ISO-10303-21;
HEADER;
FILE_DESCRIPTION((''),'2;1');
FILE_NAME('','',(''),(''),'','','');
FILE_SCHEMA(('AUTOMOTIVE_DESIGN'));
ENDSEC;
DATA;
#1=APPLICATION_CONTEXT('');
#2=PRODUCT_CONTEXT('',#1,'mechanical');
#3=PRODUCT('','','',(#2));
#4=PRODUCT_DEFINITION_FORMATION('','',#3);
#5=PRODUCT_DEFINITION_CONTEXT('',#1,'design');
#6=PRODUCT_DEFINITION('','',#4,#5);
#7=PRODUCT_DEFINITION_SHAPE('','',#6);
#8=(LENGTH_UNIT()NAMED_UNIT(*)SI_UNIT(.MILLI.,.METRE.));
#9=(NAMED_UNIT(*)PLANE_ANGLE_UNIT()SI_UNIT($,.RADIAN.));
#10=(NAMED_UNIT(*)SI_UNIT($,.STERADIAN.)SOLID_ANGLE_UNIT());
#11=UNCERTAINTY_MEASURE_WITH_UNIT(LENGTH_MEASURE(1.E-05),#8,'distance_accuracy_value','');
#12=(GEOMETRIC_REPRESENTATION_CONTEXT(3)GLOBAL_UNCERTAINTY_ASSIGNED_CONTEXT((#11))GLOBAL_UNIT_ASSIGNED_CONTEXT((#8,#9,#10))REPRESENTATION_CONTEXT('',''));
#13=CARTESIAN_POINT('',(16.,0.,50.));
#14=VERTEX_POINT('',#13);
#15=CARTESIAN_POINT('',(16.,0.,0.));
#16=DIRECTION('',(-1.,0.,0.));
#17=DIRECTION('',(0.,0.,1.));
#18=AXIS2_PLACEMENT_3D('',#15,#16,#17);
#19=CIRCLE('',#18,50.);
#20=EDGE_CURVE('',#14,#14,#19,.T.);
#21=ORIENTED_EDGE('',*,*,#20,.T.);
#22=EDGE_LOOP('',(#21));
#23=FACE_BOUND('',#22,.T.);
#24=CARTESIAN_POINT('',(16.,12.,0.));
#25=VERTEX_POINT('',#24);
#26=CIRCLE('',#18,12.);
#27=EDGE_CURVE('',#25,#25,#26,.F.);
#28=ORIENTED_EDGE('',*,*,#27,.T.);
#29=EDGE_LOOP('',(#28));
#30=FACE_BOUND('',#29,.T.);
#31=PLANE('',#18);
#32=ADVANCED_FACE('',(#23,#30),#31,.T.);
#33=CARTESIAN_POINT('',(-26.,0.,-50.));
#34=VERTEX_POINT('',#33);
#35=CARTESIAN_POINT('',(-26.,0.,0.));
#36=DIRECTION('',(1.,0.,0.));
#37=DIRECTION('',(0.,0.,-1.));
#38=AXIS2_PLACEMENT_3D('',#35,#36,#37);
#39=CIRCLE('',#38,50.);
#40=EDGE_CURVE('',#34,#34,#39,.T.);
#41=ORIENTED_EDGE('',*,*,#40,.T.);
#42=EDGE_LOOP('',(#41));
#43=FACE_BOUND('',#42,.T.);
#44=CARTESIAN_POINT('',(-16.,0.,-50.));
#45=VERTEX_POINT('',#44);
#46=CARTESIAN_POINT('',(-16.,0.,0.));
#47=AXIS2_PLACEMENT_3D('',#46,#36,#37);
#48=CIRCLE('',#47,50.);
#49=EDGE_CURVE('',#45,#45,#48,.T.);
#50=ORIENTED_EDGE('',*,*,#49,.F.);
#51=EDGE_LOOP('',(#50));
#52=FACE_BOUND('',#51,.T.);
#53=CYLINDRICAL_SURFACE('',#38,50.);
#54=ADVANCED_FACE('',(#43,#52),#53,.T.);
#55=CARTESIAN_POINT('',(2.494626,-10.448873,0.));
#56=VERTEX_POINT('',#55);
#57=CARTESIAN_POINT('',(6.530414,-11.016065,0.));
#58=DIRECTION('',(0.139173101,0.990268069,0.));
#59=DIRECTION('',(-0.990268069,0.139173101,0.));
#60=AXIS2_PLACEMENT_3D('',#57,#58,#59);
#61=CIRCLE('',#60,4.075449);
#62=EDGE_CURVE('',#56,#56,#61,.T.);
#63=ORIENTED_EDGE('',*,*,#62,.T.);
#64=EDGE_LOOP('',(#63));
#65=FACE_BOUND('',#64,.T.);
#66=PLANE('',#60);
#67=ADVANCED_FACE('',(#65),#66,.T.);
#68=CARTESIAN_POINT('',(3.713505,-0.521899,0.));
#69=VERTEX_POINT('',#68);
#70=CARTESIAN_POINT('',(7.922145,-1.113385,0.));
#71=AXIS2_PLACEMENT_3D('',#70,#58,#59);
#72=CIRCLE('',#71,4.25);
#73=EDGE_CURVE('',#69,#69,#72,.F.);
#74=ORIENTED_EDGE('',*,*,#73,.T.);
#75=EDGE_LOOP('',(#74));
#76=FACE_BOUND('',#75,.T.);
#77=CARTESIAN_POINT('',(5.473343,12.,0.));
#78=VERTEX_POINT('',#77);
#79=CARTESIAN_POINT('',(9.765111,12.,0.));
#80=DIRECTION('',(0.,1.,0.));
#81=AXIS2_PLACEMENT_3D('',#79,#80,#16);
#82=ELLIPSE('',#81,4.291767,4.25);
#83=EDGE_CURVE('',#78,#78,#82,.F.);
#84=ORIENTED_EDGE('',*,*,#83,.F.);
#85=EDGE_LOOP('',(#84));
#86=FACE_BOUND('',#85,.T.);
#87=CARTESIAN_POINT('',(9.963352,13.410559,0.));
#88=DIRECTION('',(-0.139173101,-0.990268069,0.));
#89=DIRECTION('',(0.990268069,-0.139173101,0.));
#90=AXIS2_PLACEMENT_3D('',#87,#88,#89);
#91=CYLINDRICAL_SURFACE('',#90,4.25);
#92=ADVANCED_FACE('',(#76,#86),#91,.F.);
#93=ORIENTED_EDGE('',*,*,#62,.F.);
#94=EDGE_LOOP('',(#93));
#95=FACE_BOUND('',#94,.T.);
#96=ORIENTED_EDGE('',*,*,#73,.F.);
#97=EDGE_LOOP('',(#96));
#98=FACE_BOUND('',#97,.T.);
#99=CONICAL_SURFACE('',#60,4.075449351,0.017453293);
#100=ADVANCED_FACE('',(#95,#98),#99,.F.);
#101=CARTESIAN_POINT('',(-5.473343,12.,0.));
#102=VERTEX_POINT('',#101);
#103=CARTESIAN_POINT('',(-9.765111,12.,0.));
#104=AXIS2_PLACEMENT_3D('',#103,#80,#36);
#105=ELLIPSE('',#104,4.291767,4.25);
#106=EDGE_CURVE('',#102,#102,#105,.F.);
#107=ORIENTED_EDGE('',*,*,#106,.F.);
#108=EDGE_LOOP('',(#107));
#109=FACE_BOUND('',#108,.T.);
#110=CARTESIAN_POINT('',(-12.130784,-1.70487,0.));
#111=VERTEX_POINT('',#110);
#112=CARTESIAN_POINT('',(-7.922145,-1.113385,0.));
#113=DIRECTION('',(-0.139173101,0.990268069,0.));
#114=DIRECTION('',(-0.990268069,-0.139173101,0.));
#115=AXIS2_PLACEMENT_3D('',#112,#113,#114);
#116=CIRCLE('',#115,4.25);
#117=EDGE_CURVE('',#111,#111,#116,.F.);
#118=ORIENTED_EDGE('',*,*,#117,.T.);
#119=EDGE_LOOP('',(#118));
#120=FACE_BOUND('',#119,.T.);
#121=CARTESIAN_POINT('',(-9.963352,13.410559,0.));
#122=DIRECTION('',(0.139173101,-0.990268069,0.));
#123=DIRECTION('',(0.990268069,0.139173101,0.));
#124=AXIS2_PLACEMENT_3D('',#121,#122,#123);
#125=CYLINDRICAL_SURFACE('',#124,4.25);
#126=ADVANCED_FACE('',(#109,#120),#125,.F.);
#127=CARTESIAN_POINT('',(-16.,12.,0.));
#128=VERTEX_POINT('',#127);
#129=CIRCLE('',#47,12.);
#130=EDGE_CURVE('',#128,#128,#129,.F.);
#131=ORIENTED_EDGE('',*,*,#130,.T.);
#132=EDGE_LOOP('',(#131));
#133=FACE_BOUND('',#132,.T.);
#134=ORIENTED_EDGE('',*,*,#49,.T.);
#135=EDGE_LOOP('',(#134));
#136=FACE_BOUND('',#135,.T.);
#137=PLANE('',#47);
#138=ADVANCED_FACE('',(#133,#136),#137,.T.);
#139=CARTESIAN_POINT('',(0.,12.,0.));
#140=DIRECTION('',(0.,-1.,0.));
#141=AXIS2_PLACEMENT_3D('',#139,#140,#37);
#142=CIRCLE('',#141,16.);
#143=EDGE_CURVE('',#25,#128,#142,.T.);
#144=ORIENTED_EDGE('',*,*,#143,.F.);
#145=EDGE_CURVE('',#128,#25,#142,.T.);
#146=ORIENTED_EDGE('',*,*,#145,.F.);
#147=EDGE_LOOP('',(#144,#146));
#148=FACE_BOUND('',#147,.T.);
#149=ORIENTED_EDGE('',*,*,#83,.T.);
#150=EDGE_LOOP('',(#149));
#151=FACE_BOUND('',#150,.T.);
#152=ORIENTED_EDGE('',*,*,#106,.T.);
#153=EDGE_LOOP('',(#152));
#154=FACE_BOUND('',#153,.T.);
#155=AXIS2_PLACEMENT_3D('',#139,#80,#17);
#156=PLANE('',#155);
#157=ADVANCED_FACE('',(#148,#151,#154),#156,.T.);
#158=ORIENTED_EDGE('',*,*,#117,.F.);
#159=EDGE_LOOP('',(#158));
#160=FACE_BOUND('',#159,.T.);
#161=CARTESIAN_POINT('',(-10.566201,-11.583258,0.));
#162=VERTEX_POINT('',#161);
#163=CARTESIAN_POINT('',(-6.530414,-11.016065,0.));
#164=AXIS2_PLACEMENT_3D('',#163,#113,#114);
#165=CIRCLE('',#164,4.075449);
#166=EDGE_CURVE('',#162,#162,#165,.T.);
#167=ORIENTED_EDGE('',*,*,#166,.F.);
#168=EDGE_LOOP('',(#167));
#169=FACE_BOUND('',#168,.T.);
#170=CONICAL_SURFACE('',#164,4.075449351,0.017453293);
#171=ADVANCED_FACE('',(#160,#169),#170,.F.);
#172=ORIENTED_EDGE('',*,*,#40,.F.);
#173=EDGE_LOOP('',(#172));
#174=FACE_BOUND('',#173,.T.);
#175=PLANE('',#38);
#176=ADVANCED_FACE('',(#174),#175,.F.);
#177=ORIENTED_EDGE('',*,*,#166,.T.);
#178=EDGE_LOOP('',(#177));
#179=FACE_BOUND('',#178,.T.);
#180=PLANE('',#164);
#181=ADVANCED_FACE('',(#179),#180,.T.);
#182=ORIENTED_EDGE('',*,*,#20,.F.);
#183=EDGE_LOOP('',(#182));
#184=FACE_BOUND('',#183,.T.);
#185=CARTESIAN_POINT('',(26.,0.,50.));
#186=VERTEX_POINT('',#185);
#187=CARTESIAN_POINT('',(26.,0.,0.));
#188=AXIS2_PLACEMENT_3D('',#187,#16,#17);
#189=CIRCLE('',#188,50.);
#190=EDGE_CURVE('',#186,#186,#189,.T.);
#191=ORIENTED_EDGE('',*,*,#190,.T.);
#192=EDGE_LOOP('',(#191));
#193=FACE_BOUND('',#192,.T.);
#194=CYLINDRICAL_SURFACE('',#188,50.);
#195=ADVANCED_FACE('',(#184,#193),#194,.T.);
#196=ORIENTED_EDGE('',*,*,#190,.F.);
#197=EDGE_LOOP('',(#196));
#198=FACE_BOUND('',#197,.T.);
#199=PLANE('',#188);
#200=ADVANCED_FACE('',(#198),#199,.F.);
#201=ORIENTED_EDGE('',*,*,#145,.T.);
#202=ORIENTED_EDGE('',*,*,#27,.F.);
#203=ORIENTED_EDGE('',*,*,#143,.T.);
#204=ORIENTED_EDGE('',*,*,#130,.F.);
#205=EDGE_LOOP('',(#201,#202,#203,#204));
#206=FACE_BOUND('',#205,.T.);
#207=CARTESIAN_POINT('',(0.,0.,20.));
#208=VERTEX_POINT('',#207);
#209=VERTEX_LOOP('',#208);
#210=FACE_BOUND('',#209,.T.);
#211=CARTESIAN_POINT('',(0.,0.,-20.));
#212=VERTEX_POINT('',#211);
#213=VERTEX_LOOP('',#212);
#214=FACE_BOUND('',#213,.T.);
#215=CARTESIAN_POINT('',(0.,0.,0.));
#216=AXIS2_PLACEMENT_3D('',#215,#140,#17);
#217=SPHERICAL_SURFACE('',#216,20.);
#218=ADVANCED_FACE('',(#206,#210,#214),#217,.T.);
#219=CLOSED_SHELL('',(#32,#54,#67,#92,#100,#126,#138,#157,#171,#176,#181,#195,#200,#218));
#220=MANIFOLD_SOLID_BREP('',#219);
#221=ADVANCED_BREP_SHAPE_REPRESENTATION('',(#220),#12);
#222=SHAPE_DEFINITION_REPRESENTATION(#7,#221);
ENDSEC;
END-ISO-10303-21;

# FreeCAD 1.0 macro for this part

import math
import FreeCAD as App
import Part
import Sketcher


def edges_at(feature, points):
    """Names of the edges that pass closest to the given points."""
    edges = feature.Shape.Edges
    near = lambda p: min(range(len(edges)), key=lambda i: edges[i].distToShape(Part.Vertex(*p))[0])
    return sorted({f"Edge{near(p) + 1}" for p in points})


def add_polygon(sketch, points):
    """Adds a closed chain of lines whose ends are joined by coincident constraints."""
    first, n = sketch.GeometryCount, len(points)
    for a, b in zip(points, points[1:] + points[:1]):
        sketch.addGeometry(Part.LineSegment(App.Vector(*a, 0), App.Vector(*b, 0)), False)
    for i in range(n):
        sketch.addConstraint(Sketcher.Constraint("Coincident", first + i, 2, first + (i + 1) % n, 1))

doc = App.newDocument("Part")
body = doc.addObject("PartDesign::Body", "Body")

sketch1 = body.newObject("Sketcher::SketchObject", "Sketch")
sketch1.AttachmentSupport = (doc.getObject("YZ_Plane"), [""])
sketch1.MapMode = "FlatFace"
sketch1.addGeometry(Part.LineSegment(App.Vector(12, -16, 0), App.Vector(12, 0, 0)), False)
sketch1.addGeometry(Part.LineSegment(App.Vector(12, 0, 0), App.Vector(-20, 0, 0)), False)
sketch1.addGeometry(Part.ArcOfCircle(Part.Circle(App.Vector(0, 0, 0), App.Vector(0, 0, 1), 20), math.radians(180), math.radians(307)), False)
sketch1.addConstraint(Sketcher.Constraint("Coincident", 0, 2, 1, 1))
sketch1.addConstraint(Sketcher.Constraint("Coincident", 1, 2, 2, 1))
sketch1.addConstraint(Sketcher.Constraint("Coincident", 2, 2, 0, 1))
sketch1.addConstraint(Sketcher.Constraint("Vertical", 0))
sketch1.addConstraint(Sketcher.Constraint("Horizontal", 1))
sketch1.addConstraint(Sketcher.Constraint("Coincident", 2, 3, -1, 1))
sketch1.addConstraint(Sketcher.Constraint("PointOnObject", 0, 2, -1))
sketch1.addConstraint(Sketcher.Constraint("Radius", 2, 20.0))
sketch1.addConstraint(Sketcher.Constraint("DistanceX", 1, 2, 1, 1, 32.0))
revolution = body.newObject("PartDesign::Revolution", "Revolution")
revolution.Profile = sketch1
revolution.ReferenceAxis = (sketch1, ["H_Axis"])
revolution.Angle = 360

sketch2 = body.newObject("Sketcher::SketchObject", "Sketch001")
sketch2.Placement = App.Placement(App.Vector(0, 0, 0), App.Rotation(App.Vector(0, 0, 1), App.Vector(0.990268069, -0.139173101, 0), App.Vector(0.139173101, 0.990268069, 0), "ZXY"))
sketch2.addGeometry(Part.Circle(App.Vector(0, 8, 0), App.Vector(0, 0, 1), 4.2), False)
sketch2.addConstraint(Sketcher.Constraint("PointOnObject", 0, 3, -2))
sketch2.addConstraint(Sketcher.Constraint("Diameter", 0, 8.5))
sketch2.addConstraint(Sketcher.Constraint("DistanceY", -1, 1, 0, 3, 8.0))
pocket1 = body.newObject("PartDesign::Pocket", "Pocket")
pocket1.Profile = sketch2
pocket1.Type = "TwoLengths"
pocket1.Length = 15.666679
pocket1.Length2 = 10
pocket1.Reversed = True

sketch3 = body.newObject("Sketcher::SketchObject", "Sketch002")
sketch3.Placement = App.Placement(App.Vector(0, 0, 0), App.Rotation(App.Vector(0, 0, 1), App.Vector(0.990268069, 0.139173101, 0), App.Vector(-0.139173101, 0.990268069, 0), "ZXY"))
sketch3.addGeometry(Part.Circle(App.Vector(0, -8, 0), App.Vector(0, 0, 1), 4.2), False)
sketch3.addConstraint(Sketcher.Constraint("PointOnObject", 0, 3, -2))
sketch3.addConstraint(Sketcher.Constraint("Diameter", 0, 8.5))
sketch3.addConstraint(Sketcher.Constraint("DistanceY", 0, 3, -1, 1, 8.0))
pocket2 = body.newObject("PartDesign::Pocket", "Pocket001")
pocket2.Profile = sketch3
pocket2.Type = "TwoLengths"
pocket2.Length = 15.666679
pocket2.Length2 = 10
pocket2.Reversed = True
doc.recompute()

chamfer = body.newObject("PartDesign::Chamfer", "Chamfer")
chamfer.Base = (pocket2, edges_at(pocket2, [(-6.53, -11.016, -4.25)]))
chamfer.ChamferType = "Two distances"
chamfer.Size = 10
chamfer.Size2 = 0.174551
doc.recompute()

chamfer2 = body.newObject("PartDesign::Chamfer", "Chamfer001")
chamfer2.Base = (chamfer, edges_at(chamfer, [(6.53, -11.016, -4.25)]))
chamfer2.ChamferType = "Two distances"
chamfer2.Size = 10
chamfer2.Size2 = 0.174551

sketch4 = body.newObject("Sketcher::SketchObject", "Sketch003")
sketch4.AttachmentSupport = (doc.getObject("XZ_Plane"), [""])
sketch4.MapMode = "FlatFace"
sketch4.AttachmentOffset = App.Placement(App.Vector(0, 0, -12), App.Rotation())
add_polygon(sketch4, [(-27, -27), (-27, 27), (27, 27), (27, -27)])
add_polygon(sketch4, [(16, 20), (-16, 20), (-16, -20), (16, -20)])
sketch4.addConstraint(Sketcher.Constraint("Vertical", 0))
sketch4.addConstraint(Sketcher.Constraint("Horizontal", 1))
sketch4.addConstraint(Sketcher.Constraint("Vertical", 2))
sketch4.addConstraint(Sketcher.Constraint("Horizontal", 3))
sketch4.addConstraint(Sketcher.Constraint("Horizontal", 4))
sketch4.addConstraint(Sketcher.Constraint("Vertical", 5))
sketch4.addConstraint(Sketcher.Constraint("Horizontal", 6))
sketch4.addConstraint(Sketcher.Constraint("Vertical", 7))
sketch4.addConstraint(Sketcher.Constraint("Symmetric", 0, 2, 2, 2, -1, 1))
sketch4.addConstraint(Sketcher.Constraint("Symmetric", 4, 2, 6, 2, -1, 1))
sketch4.addConstraint(Sketcher.Constraint("Equal", 3, 0))
sketch4.addConstraint(Sketcher.Constraint("DistanceX", 4, 2, 4, 1, 32.0))
sketch4.addConstraint(Sketcher.Constraint("DistanceY", 5, 2, 5, 1, 40.0))
sketch4.addConstraint(Sketcher.Constraint("DistanceX", 1, 1, 1, 2, 54.998))
pocket3 = body.newObject("PartDesign::Pocket", "Pocket002")
pocket3.Profile = sketch4
pocket3.Type = "ThroughAll"
pocket3.Reversed = True

sketch5 = body.newObject("Sketcher::SketchObject", "Sketch004")
sketch5.AttachmentSupport = (doc.getObject("YZ_Plane"), [""])
sketch5.MapMode = "FlatFace"
sketch5.AttachmentOffset = App.Placement(App.Vector(0, 0, -16), App.Rotation())
sketch5.addGeometry(Part.Circle(App.Vector(0, 0, 0), App.Vector(0, 0, 1), 50), False)
sketch5.addConstraint(Sketcher.Constraint("Coincident", 0, 3, -1, 1))
sketch5.addConstraint(Sketcher.Constraint("Diameter", 0, 100.0))
pad1 = body.newObject("PartDesign::Pad", "Pad")
pad1.Profile = sketch5
pad1.Length = 10
pad1.Reversed = True

sketch6 = body.newObject("Sketcher::SketchObject", "Sketch005")
sketch6.AttachmentSupport = (doc.getObject("YZ_Plane"), [""])
sketch6.MapMode = "FlatFace"
sketch6.AttachmentOffset = App.Placement(App.Vector(0, 0, 16), App.Rotation())
sketch6.addGeometry(Part.Circle(App.Vector(0, 0, 0), App.Vector(0, 0, 1), 50), False)
sketch6.addConstraint(Sketcher.Constraint("Coincident", 0, 3, -1, 1))
sketch6.addConstraint(Sketcher.Constraint("Diameter", 0, 100.0))
pad2 = body.newObject("PartDesign::Pad", "Pad001")
pad2.Profile = sketch6
pad2.Length = 10

doc.recompute()
